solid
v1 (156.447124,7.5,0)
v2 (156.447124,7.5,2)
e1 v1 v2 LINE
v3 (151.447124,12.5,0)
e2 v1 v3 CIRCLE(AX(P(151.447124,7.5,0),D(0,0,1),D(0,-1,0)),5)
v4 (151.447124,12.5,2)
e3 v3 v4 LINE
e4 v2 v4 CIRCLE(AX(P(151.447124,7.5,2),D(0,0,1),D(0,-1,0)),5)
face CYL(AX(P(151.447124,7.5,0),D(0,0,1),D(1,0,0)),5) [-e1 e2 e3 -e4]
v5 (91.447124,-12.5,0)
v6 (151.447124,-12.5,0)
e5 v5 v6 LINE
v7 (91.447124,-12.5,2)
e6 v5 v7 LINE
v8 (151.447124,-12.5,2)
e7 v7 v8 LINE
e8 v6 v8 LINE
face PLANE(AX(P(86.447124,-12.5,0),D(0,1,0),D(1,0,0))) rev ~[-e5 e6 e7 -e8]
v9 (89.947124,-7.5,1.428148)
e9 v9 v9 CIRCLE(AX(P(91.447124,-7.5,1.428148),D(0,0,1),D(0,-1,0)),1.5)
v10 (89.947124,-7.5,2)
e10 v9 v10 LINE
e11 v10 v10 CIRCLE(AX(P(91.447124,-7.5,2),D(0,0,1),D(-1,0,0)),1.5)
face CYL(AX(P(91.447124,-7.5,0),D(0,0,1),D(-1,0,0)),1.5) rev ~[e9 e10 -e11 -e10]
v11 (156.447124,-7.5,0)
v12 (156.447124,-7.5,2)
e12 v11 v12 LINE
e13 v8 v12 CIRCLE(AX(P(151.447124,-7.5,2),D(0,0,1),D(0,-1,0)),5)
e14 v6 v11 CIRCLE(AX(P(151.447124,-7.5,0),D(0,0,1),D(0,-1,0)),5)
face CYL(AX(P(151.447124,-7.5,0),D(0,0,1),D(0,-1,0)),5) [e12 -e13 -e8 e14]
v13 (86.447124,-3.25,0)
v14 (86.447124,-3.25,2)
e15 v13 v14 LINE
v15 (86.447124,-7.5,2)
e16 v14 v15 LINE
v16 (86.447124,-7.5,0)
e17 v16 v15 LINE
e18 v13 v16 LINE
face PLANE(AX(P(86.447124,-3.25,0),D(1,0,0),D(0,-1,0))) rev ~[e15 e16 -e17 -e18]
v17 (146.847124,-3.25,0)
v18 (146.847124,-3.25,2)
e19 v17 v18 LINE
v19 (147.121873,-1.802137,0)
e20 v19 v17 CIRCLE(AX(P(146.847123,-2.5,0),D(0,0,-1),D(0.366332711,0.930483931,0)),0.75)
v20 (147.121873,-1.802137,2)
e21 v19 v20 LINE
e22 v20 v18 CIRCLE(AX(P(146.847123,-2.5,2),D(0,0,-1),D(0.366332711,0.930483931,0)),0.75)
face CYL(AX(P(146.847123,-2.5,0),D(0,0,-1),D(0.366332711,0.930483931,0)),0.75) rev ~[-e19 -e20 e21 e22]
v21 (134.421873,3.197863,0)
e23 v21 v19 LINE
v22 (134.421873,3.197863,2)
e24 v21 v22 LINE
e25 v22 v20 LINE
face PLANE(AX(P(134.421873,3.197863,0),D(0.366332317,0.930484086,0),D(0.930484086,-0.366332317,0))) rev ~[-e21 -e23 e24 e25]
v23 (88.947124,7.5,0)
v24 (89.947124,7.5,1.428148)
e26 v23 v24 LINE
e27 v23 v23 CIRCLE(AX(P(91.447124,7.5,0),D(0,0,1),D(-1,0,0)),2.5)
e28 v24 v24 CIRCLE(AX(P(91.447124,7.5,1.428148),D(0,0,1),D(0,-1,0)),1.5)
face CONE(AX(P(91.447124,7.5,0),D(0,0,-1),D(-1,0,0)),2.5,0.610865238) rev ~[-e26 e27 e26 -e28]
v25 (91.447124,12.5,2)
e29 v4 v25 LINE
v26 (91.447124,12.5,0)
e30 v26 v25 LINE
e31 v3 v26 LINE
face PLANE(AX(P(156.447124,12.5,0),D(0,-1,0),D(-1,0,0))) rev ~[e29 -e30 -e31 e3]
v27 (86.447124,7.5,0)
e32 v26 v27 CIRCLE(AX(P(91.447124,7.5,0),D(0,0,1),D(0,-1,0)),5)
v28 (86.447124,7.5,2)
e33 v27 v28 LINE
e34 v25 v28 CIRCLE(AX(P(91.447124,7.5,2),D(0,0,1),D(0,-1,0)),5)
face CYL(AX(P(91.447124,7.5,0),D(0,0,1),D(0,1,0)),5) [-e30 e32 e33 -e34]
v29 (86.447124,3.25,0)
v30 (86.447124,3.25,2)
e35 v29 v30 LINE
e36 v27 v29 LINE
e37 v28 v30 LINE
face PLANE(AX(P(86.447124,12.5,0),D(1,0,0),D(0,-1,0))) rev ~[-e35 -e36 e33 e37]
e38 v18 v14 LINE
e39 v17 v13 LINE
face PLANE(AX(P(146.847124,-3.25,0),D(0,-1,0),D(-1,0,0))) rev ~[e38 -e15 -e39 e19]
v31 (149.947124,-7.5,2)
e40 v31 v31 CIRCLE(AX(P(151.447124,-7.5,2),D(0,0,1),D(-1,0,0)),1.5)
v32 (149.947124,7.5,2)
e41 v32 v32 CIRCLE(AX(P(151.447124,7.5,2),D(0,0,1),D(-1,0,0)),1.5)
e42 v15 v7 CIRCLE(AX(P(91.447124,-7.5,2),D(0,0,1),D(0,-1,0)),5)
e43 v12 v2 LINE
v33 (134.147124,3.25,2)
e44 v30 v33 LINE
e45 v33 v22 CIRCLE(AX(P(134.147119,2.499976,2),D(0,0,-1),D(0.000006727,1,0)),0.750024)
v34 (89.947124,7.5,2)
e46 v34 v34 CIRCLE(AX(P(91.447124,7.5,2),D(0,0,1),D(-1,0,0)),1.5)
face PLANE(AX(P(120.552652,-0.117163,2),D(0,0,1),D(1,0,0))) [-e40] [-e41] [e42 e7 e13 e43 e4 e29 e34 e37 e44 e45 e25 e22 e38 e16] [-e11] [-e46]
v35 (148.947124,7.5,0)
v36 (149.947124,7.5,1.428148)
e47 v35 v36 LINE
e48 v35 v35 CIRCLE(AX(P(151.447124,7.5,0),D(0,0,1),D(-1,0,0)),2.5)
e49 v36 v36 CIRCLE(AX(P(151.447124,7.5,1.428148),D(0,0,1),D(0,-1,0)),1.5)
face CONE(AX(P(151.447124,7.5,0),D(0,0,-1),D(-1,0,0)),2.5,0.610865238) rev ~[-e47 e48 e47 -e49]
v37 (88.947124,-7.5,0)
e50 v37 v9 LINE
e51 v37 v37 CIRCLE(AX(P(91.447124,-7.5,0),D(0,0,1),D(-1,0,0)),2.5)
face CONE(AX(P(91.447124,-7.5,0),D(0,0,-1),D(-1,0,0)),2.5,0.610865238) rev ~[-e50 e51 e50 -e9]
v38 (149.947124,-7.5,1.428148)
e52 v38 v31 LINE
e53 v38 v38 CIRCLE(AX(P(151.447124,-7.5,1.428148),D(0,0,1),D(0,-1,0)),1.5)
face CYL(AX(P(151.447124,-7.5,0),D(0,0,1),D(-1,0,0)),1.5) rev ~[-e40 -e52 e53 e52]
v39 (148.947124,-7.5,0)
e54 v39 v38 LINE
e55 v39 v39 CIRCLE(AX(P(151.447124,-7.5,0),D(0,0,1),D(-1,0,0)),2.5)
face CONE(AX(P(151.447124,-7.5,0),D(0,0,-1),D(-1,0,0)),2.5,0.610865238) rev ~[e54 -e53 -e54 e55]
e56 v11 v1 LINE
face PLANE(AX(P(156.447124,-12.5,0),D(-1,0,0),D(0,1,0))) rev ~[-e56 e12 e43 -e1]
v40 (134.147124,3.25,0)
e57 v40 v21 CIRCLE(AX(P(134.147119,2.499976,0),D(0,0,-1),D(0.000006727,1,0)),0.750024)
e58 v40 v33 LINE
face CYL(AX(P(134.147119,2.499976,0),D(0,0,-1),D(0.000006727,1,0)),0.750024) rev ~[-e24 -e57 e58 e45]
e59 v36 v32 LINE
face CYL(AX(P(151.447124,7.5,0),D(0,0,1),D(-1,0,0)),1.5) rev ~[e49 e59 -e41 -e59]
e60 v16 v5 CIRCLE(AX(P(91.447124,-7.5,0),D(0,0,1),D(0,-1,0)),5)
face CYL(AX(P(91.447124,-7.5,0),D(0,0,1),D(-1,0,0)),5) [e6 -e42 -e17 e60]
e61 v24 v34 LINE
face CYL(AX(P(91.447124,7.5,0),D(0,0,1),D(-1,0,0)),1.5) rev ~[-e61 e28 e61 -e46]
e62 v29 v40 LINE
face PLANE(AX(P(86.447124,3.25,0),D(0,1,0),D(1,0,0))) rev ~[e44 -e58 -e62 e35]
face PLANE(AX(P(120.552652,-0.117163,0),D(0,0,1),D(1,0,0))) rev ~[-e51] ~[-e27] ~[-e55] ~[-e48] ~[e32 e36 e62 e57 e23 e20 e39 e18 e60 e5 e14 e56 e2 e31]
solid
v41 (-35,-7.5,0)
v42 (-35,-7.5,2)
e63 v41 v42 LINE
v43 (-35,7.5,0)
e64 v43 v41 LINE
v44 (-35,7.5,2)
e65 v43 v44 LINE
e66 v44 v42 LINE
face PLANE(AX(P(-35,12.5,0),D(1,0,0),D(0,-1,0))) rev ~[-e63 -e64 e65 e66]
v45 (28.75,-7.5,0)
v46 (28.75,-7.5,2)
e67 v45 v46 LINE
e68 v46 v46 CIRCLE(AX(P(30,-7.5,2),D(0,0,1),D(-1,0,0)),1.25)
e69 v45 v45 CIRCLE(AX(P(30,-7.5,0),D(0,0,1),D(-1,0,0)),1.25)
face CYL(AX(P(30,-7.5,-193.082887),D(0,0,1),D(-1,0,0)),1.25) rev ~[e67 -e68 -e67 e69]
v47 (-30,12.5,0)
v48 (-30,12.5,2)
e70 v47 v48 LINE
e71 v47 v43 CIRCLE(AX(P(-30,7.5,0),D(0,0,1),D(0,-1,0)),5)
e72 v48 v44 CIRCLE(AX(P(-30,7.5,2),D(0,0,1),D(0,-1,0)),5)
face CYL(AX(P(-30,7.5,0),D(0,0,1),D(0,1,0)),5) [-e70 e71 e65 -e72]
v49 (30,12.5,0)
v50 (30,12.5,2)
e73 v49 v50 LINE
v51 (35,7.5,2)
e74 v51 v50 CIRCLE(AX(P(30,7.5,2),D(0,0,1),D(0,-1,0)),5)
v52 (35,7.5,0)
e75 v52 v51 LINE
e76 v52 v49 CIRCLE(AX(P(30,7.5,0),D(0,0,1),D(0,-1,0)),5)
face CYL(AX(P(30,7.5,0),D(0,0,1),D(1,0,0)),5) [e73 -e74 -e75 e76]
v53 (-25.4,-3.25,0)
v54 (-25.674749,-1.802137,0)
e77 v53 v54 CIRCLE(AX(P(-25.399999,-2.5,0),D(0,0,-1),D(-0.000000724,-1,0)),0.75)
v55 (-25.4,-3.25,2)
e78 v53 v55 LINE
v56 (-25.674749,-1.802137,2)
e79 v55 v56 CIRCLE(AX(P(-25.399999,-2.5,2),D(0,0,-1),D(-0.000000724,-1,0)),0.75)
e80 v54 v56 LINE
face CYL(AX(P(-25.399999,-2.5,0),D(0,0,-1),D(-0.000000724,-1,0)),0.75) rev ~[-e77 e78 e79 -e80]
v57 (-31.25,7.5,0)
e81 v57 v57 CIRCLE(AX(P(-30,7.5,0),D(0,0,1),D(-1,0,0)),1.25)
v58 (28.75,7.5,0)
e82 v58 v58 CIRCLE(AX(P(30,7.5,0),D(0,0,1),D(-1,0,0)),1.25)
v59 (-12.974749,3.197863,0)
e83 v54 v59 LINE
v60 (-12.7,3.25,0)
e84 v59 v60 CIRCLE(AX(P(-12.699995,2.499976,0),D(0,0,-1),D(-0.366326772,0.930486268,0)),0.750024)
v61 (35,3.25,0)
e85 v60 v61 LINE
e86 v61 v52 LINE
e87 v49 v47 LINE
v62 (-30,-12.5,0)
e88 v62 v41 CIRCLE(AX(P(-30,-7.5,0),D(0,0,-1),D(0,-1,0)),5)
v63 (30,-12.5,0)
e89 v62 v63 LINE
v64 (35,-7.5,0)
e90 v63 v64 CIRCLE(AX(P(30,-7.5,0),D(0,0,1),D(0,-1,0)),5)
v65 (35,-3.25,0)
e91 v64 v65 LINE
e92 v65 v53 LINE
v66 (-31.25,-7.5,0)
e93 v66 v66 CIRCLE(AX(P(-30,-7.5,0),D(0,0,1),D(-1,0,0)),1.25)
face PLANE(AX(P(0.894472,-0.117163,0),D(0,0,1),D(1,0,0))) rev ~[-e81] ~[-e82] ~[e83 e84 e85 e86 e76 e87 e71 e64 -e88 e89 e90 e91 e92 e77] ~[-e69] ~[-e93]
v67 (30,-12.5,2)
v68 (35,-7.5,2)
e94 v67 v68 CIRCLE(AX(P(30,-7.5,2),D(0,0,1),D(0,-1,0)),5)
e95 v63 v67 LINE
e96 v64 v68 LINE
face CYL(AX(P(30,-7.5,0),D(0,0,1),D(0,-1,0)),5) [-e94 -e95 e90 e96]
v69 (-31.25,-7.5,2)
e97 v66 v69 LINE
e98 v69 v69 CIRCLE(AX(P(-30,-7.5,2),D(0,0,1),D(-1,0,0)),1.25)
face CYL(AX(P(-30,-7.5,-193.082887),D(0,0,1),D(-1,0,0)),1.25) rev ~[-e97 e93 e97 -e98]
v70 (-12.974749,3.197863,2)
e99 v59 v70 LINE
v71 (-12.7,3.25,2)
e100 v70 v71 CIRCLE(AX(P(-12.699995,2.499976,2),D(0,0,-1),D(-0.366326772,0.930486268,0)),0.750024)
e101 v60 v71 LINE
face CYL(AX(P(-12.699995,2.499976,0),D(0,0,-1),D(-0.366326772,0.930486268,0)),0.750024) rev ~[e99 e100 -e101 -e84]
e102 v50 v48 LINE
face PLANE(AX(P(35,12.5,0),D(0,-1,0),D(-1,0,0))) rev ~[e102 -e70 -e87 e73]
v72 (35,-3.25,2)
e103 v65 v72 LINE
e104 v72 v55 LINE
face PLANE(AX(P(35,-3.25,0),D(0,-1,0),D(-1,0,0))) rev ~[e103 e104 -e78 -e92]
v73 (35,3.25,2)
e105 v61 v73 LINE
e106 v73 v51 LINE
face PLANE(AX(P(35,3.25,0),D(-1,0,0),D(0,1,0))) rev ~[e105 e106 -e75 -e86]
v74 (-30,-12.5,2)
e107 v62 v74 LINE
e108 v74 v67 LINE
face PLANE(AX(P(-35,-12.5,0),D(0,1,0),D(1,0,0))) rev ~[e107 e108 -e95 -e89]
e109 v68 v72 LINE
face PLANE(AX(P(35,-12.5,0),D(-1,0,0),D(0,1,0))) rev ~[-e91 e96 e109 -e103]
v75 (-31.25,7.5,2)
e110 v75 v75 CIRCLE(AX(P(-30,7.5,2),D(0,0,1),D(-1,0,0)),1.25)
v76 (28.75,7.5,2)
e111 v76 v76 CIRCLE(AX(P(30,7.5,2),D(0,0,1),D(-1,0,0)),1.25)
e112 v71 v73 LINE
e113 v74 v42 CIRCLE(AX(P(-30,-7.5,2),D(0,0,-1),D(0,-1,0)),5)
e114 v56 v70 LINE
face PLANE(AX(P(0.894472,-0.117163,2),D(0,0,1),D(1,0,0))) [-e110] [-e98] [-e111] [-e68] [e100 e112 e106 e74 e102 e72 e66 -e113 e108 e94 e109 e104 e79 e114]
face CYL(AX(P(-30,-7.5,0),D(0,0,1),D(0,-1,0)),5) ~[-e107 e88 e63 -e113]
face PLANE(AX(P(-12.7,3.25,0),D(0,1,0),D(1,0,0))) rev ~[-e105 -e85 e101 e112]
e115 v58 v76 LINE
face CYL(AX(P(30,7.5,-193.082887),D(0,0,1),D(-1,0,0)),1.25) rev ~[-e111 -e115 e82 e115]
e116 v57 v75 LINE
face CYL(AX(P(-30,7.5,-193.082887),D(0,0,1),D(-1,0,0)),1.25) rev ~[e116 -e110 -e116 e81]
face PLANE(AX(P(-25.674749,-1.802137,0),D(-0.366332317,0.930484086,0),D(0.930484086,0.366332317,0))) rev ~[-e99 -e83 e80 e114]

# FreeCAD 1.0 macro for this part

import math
import FreeCAD as App
import Part
import Sketcher
from FreeCAD import Vector


def edges_at(feature, points):
    """Names of the edges that pass closest to the given points."""
    edges = feature.Shape.Edges
    near = lambda p: min(range(len(edges)), key=lambda i: edges[i].distToShape(Part.Vertex(*p))[0])
    return sorted({f"Edge{near(p) + 1}" for p in points})

doc = App.newDocument("Part")
body = doc.addObject("PartDesign::Body", "Body")
body.AllowCompound = True

sketch1 = doc.addObject("Sketcher::SketchObject", "Sketch")
body.addObject(sketch1)
sketch1.AttachmentSupport = (doc.XY_Plane, [""])
sketch1.MapMode = "FlatFace"
sketch1.addGeometry([
    Part.LineSegment(Vector(-35, -12.5, 0), Vector(35, -12.5, 0)),
    Part.LineSegment(Vector(35, -12.5, 0), Vector(35, -3.25, 0)),
    Part.LineSegment(Vector(35, -3.25, 0), Vector(-25.4, -3.25, 0)),
    Part.ArcOfCircle(Part.Circle(Vector(-25.399999, -2.5, 0), Vector(0, 0, 1), 0.75), math.radians(111.489623), math.radians(269.999959)),
    Part.LineSegment(Vector(-25.674749, -1.802137, 0), Vector(-12.974749, 3.197863, 0)),
    Part.ArcOfCircle(Part.Circle(Vector(-12.699995, 2.499976, 0), Vector(0, 0, 1), 0.750024), math.radians(90.000385), math.radians(111.489257)),
    Part.LineSegment(Vector(-12.7, 3.25, 0), Vector(35, 3.25, 0)),
    Part.LineSegment(Vector(35, 3.25, 0), Vector(35, 12.5, 0)),
    Part.LineSegment(Vector(35, 12.5, 0), Vector(-35, 12.5, 0)),
    Part.LineSegment(Vector(-35, 12.5, 0), Vector(-35, -12.5, 0)),
    Part.LineSegment(Vector(86.447124, 3.25, 0), Vector(134.147124, 3.25, 0)),
    Part.ArcOfCircle(Part.Circle(Vector(134.147119, 2.499976, 0), Vector(0, 0, 1), 0.750024), math.radians(68.510743), math.radians(89.999615)),
    Part.LineSegment(Vector(134.421873, 3.197863, 0), Vector(147.121873, -1.802137, 0)),
    Part.ArcOfCircle(Part.Circle(Vector(146.847123, -2.5, 0), Vector(0, 0, 1), 0.75), math.radians(-89.999959), math.radians(68.510377)),
    Part.LineSegment(Vector(146.847124, -3.25, 0), Vector(86.447124, -3.25, 0)),
    Part.LineSegment(Vector(86.447124, -3.25, 0), Vector(86.447124, -12.5, 0)),
    Part.LineSegment(Vector(86.447124, -12.5, 0), Vector(156.447124, -12.5, 0)),
    Part.LineSegment(Vector(156.447124, -12.5, 0), Vector(156.447124, 12.5, 0)),
    Part.LineSegment(Vector(156.447124, 12.5, 0), Vector(86.447124, 12.5, 0)),
    Part.LineSegment(Vector(86.447124, 12.5, 0), Vector(86.447124, 3.25, 0)),
], False)
sketch1.addConstraint([
    Sketcher.Constraint("Coincident", 0, 2, 1, 1),
    Sketcher.Constraint("Coincident", 1, 2, 2, 1),
    Sketcher.Constraint("Tangent", 2, 2, 3, 2),
    Sketcher.Constraint("Tangent", 3, 1, 4, 1),
    Sketcher.Constraint("Coincident", 4, 2, 5, 2),
    Sketcher.Constraint("Coincident", 5, 1, 6, 1),
    Sketcher.Constraint("Coincident", 6, 2, 7, 1),
    Sketcher.Constraint("Coincident", 7, 2, 8, 1),
    Sketcher.Constraint("Coincident", 8, 2, 9, 1),
    Sketcher.Constraint("Coincident", 9, 2, 0, 1),
    Sketcher.Constraint("Coincident", 10, 2, 11, 2),
    Sketcher.Constraint("Coincident", 11, 1, 12, 1),
    Sketcher.Constraint("Tangent", 12, 2, 13, 2),
    Sketcher.Constraint("Tangent", 13, 1, 14, 1),
    Sketcher.Constraint("Coincident", 14, 2, 15, 1),
    Sketcher.Constraint("Coincident", 15, 2, 16, 1),
    Sketcher.Constraint("Coincident", 16, 2, 17, 1),
    Sketcher.Constraint("Coincident", 17, 2, 18, 1),
    Sketcher.Constraint("Coincident", 18, 2, 19, 1),
    Sketcher.Constraint("Coincident", 19, 2, 10, 1),
    Sketcher.Constraint("Horizontal", 0),
    Sketcher.Constraint("Vertical", 1),
    Sketcher.Constraint("Horizontal", 2),
    Sketcher.Constraint("Horizontal", 6),
    Sketcher.Constraint("Vertical", 7),
    Sketcher.Constraint("Horizontal", 8),
    Sketcher.Constraint("Vertical", 9),
    Sketcher.Constraint("Horizontal", 10),
    Sketcher.Constraint("Horizontal", 14),
    Sketcher.Constraint("Vertical", 15),
    Sketcher.Constraint("Horizontal", 16),
    Sketcher.Constraint("Vertical", 17),
    Sketcher.Constraint("Horizontal", 18),
    Sketcher.Constraint("Vertical", 19),
    Sketcher.Constraint("Equal", 5, 11),
    Sketcher.Constraint("Equal", 3, 13),
    Sketcher.Constraint("Symmetric", 0, 2, 8, 2, -1, 1),
    Sketcher.Constraint("Symmetric", 1, 2, 6, 2, -1),
    Sketcher.Constraint("Symmetric", 15, 2, 18, 2, -1),
    Sketcher.Constraint("Horizontal", 5, 3, 11, 3),
    Sketcher.Constraint("Horizontal", 3, 3, 13, 3),
    Sketcher.Constraint("Horizontal", 4, 2, 11, 1),
    Sketcher.Constraint("Horizontal", 3, 1, 12, 2),
    Sketcher.Constraint("Horizontal", 9, 2, 15, 2),
    Sketcher.Constraint("Equal", 6, 10),
    Sketcher.Constraint("Equal", 2, 14),
    Sketcher.Constraint("Equal", 8, 16),
    Sketcher.Constraint("DistanceX", 0, 1, 0, 2, 70.0),
    Sketcher.Constraint("DistanceY", 9, 2, 9, 1, 25.0),
    Sketcher.Constraint("Radius", 3, 0.75),
    Sketcher.Constraint("DistanceX", 2, 2, 2, 1, 60.4),
    Sketcher.Constraint("DistanceX", 6, 1, 6, 2, 47.7),
    Sketcher.Constraint("DistanceY", 0, 2, 3, 3, 10.0),
    Sketcher.Constraint("DistanceY", 3, 1, 4, 2, 5.0),
    Sketcher.Constraint("DistanceX", 3, 1, 4, 2, 12.7),
    Sketcher.Constraint("Radius", 5, 0.750024),
    Sketcher.Constraint("DistanceX", -1, 1, 11, 3, 134.147119),
])
pad1 = doc.addObject("PartDesign::Pad", "Pad")
body.addObject(pad1)
pad1.Profile = sketch1
pad1.Length = 2
doc.recompute()

fillet = doc.addObject("PartDesign::Fillet", "Fillet")
body.addObject(fillet)
fillet.Base = (pad1, edges_at(pad1, [
    (-35, 12.5, 1),
    (35, 12.5, 1),
    (-35, -12.5, 1),
    (35, -12.5, 1),
    (86.447, 12.5, 1),
    (156.447, 12.5, 1),
    (86.447, -12.5, 1),
    (156.447, -12.5, 1),
]))
fillet.Radius = 5

sketch2 = doc.addObject("Sketcher::SketchObject", "Sketch001")
body.addObject(sketch2)
sketch2.AttachmentSupport = (doc.XY_Plane, [""])
sketch2.MapMode = "FlatFace"
sketch2.addGeometry([
    Part.Circle(Vector(-30, -7.5, 0), Vector(0, 0, 1), 1.25),
    Part.Circle(Vector(-30, 7.5, 0), Vector(0, 0, 1), 1.25),
    Part.Circle(Vector(30, 7.5, 0), Vector(0, 0, 1), 1.25),
    Part.Circle(Vector(30, -7.5, 0), Vector(0, 0, 1), 1.25),
], False)
sketch2.addConstraint([
    Sketcher.Constraint("Equal", 0, 1),
    Sketcher.Constraint("Equal", 1, 2),
    Sketcher.Constraint("Equal", 2, 3),
    Sketcher.Constraint("Symmetric", 0, 3, 2, 3, -1, 1),
    Sketcher.Constraint("Symmetric", 1, 3, 3, 3, -1, 1),
    Sketcher.Constraint("Symmetric", 1, 3, 2, 3, -2),
    Sketcher.Constraint("Diameter", 0, 2.5),
    Sketcher.Constraint("DistanceX", 0, 3, -1, 1, 30.0),
    Sketcher.Constraint("DistanceY", 0, 3, 1, 3, 15.0),
])
doc.recompute()
hole = doc.addObject("PartDesign::Hole", "Hole")
body.addObject(hole)
hole.Profile = sketch2
hole.ThreadType = "None"
hole.Diameter = 2.5
hole.DepthType = "ThroughAll"
hole.Reversed = True

sketch3 = doc.addObject("Sketcher::SketchObject", "Sketch002")
body.addObject(sketch3)
sketch3.AttachmentSupport = (doc.XY_Plane, [""])
sketch3.MapMode = "FlatFace"
sketch3.addGeometry([
    Part.Circle(Vector(91.447124, -7.5, 0), Vector(0, 0, 1), 1.5),
    Part.Circle(Vector(151.447124, -7.5, 0), Vector(0, 0, 1), 1.5),
    Part.Circle(Vector(151.447124, 7.5, 0), Vector(0, 0, 1), 1.5),
    Part.Circle(Vector(91.447124, 7.5, 0), Vector(0, 0, 1), 1.5),
], False)
sketch3.addConstraint([
    Sketcher.Constraint("Equal", 0, 1),
    Sketcher.Constraint("Equal", 1, 2),
    Sketcher.Constraint("Equal", 2, 3),
    Sketcher.Constraint("Symmetric", 1, 3, 2, 3, -1),
    Sketcher.Constraint("Symmetric", 0, 3, 3, 3, -1),
    Sketcher.Constraint("Horizontal", 0, 3, 1, 3),
    Sketcher.Constraint("Diameter", 0, 3.0),
    Sketcher.Constraint("DistanceX", 0, 3, 1, 3, 60.0),
    Sketcher.Constraint("DistanceY", 1, 3, 2, 3, 15.0),
    Sketcher.Constraint("DistanceX", -1, 1, 0, 3, 91.447124),
])
doc.recompute()
hole2 = doc.addObject("PartDesign::Hole", "Hole001")
body.addObject(hole2)
hole2.Profile = sketch3
hole2.ThreadType = "None"
hole2.Diameter = 3
hole2.DepthType = "ThroughAll"
hole2.HoleCutType = "Countersink"
hole2.HoleCutDiameter = 5
hole2.HoleCutCountersinkAngle = 70
hole2.Reversed = True

doc.recompute()
